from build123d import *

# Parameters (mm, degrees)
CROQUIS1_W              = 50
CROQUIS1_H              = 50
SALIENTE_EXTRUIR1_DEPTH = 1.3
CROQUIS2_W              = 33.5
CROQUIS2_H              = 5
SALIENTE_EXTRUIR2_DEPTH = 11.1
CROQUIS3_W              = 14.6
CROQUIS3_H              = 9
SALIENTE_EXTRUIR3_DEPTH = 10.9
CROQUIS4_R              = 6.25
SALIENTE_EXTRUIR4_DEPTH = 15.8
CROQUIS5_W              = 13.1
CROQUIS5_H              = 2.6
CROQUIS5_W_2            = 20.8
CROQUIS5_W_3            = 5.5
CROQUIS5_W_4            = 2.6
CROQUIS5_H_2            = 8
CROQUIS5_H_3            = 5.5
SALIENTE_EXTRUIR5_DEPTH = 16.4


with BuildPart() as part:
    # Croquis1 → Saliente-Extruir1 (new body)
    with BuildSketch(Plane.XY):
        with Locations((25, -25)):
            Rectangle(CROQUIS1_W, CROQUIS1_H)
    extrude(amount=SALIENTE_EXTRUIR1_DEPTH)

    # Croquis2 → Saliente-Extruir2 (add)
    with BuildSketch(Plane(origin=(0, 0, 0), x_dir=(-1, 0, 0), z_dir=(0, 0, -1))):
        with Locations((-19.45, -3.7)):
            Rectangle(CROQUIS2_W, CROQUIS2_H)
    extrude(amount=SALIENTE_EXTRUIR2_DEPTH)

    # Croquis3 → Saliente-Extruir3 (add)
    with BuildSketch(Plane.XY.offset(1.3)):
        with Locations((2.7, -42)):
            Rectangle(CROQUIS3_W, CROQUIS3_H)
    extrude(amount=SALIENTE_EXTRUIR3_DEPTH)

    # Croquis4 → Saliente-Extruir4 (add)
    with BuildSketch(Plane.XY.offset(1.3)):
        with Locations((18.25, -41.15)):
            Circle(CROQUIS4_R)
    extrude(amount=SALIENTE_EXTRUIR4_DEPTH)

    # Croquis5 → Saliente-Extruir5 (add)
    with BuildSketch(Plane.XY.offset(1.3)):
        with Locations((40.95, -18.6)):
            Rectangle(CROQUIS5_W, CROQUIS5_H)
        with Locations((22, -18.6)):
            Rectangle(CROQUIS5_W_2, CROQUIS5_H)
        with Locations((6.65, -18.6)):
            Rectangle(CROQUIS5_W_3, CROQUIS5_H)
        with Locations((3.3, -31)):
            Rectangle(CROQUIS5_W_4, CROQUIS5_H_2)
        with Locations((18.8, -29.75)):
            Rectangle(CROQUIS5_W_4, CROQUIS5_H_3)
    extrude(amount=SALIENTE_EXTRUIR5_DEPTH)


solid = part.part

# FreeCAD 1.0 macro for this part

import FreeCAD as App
import Part
import Sketcher

V = App.Vector


def add_polygon(sketch, points):
    """Adds a closed chain of lines whose ends are joined by coincident constraints."""
    first, n = sketch.GeometryCount, len(points)
    for a, b in zip(points, points[1:] + points[:1]):
        sketch.addGeometry(Part.LineSegment(App.Vector(*a, 0), App.Vector(*b, 0)), False)
    for i in range(n):
        sketch.addConstraint(Sketcher.Constraint("Coincident", first + i, 2, first + (i + 1) % n, 1))

doc = App.newDocument("Part")
body = doc.addObject("PartDesign::Body", "Body")

sketch1 = body.newObject("Sketcher::SketchObject", "Sketch")
sketch1.AttachmentSupport = (doc.getObject("XY_Plane"), [""])
sketch1.MapMode = "FlatFace"
add_polygon(sketch1, [(0, 0), (0, -50), (50, -50), (50, 0)])
sketch1.addConstraint([
    Sketcher.Constraint("Vertical", 0),
    Sketcher.Constraint("Horizontal", 1),
    Sketcher.Constraint("Vertical", 2),
    Sketcher.Constraint("Horizontal", 3),
    Sketcher.Constraint("Coincident", 3, 2, -1, 1),
    Sketcher.Constraint("Equal", 3, 0),
    Sketcher.Constraint("DistanceX", 1, 1, 1, 2, 50.0),
])
pad1 = body.newObject("PartDesign::Pad", "Pad")
pad1.Profile = sketch1
pad1.Length = 1.3

sketch2 = body.newObject("Sketcher::SketchObject", "Sketch001")
sketch2.AttachmentSupport = (doc.getObject("XY_Plane"), [""])
sketch2.MapMode = "FlatFace"
add_polygon(sketch2, [(36, -1), (36, -6), (3, -6), (3, -1)])
sketch2.addConstraint([
    Sketcher.Constraint("Vertical", 0),
    Sketcher.Constraint("Horizontal", 1),
    Sketcher.Constraint("Vertical", 2),
    Sketcher.Constraint("Horizontal", 3),
    Sketcher.Constraint("DistanceY", 0, 2, 0, 1, 5.0),
    Sketcher.Constraint("DistanceX", 1, 2, 1, 1, 33.5),
    Sketcher.Constraint("DistanceX", -1, 1, 0, 2, 36.2),
    Sketcher.Constraint("DistanceY", 0, 2, -1, 1, 6.2),
])
pad2 = body.newObject("PartDesign::Pad", "Pad001")
pad2.Profile = sketch2
pad2.Length = 11.1
pad2.Reversed = True

sketch3 = body.newObject("Sketcher::SketchObject", "Sketch002")
sketch3.AttachmentSupport = (doc.getObject("XY_Plane"), [""])
sketch3.MapMode = "FlatFace"
sketch3.AttachmentOffset = App.Placement(V(0, 0, 1.3), App.Rotation())
add_polygon(sketch3, [(-5, -38), (-5, -46), (10, -46), (10, -38)])
sketch3.addConstraint([
    Sketcher.Constraint("Vertical", 0),
    Sketcher.Constraint("Horizontal", 1),
    Sketcher.Constraint("Vertical", 2),
    Sketcher.Constraint("Horizontal", 3),
    Sketcher.Constraint("DistanceY", 0, 2, 0, 1, 9.0),
    Sketcher.Constraint("DistanceX", 1, 1, 1, 2, 14.6),
    Sketcher.Constraint("DistanceX", -1, 1, 1, 2, 10.0),
    Sketcher.Constraint("DistanceY", 0, 2, -1, 1, 46.5),
])
pad3 = body.newObject("PartDesign::Pad", "Pad002")
pad3.Profile = sketch3
pad3.Length = 10.9

sketch4 = body.newObject("Sketcher::SketchObject", "Sketch003")
sketch4.AttachmentSupport = (doc.getObject("XY_Plane"), [""])
sketch4.MapMode = "FlatFace"
sketch4.AttachmentOffset = App.Placement(V(0, 0, 1.3), App.Rotation())
sketch4.addGeometry(Part.Circle(V(18, -41, 0), V(0, 0, 1), 6), False)
sketch4.addConstraint([
    Sketcher.Constraint("Diameter", 0, 12.5),
    Sketcher.Constraint("DistanceX", -1, 1, 0, 3, 18.25),
    Sketcher.Constraint("DistanceY", 0, 3, -1, 1, 41.15),
])
pad4 = body.newObject("PartDesign::Pad", "Pad003")
pad4.Profile = sketch4
pad4.Length = 15.8

sketch5 = body.newObject("Sketcher::SketchObject", "Sketch004")
sketch5.AttachmentSupport = (doc.getObject("XY_Plane"), [""])
sketch5.MapMode = "FlatFace"
sketch5.AttachmentOffset = App.Placement(V(0, 0, 1.3), App.Rotation())
add_polygon(sketch5, [(34.4, -17.3), (34.4, -19.9), (47.5, -19.9), (47.5, -17.3)])
add_polygon(sketch5, [(11.6, -17.3), (11.6, -19.9), (32.4, -19.9), (32.4, -17.3)])
add_polygon(sketch5, [(3.9, -17.3), (3.9, -19.9), (9.4, -19.9), (9.4, -17.3)])
add_polygon(sketch5, [(2, -27), (2, -35), (4.6, -35), (4.6, -27)])
add_polygon(sketch5, [(17.5, -27), (17.5, -32.5), (20.1, -32.5), (20.1, -27)])
sketch5.addConstraint([
    Sketcher.Constraint("Vertical", 0),
    Sketcher.Constraint("Horizontal", 1),
    Sketcher.Constraint("Vertical", 2),
    Sketcher.Constraint("Horizontal", 3),
    Sketcher.Constraint("Vertical", 4),
    Sketcher.Constraint("Horizontal", 5),
    Sketcher.Constraint("Vertical", 6),
    Sketcher.Constraint("Horizontal", 7),
    Sketcher.Constraint("Vertical", 8),
    Sketcher.Constraint("Horizontal", 9),
    Sketcher.Constraint("Vertical", 10),
    Sketcher.Constraint("Horizontal", 11),
    Sketcher.Constraint("Vertical", 12),
    Sketcher.Constraint("Horizontal", 13),
    Sketcher.Constraint("Vertical", 14),
    Sketcher.Constraint("Horizontal", 15),
    Sketcher.Constraint("Vertical", 16),
    Sketcher.Constraint("Horizontal", 17),
    Sketcher.Constraint("Vertical", 18),
    Sketcher.Constraint("Horizontal", 19),
    Sketcher.Constraint("Horizontal", 1, 2, 4, 2),
    Sketcher.Constraint("Horizontal", 3, 2, 6, 2),
    Sketcher.Constraint("Horizontal", 5, 2, 8, 2),
    Sketcher.Constraint("Horizontal", 7, 2, 10, 2),
    Sketcher.Constraint("Horizontal", 15, 2, 18, 2),
    Sketcher.Constraint("Equal", 15, 17),
    Sketcher.Constraint("Equal", 19, 0),
    Sketcher.Constraint("Equal", 11, 16),
    Sketcher.Constraint("DistanceY", 12, 2, 12, 1, 8.0),
    Sketcher.Constraint("DistanceX", 1, 1, 1, 2, 13.1),
    Sketcher.Constraint("DistanceX", 5, 1, 5, 2, 20.8),
    Sketcher.Constraint("DistanceX", 9, 1, 9, 2, 5.5),
    Sketcher.Constraint("DistanceX", 13, 1, 13, 2, 2.6),
    Sketcher.Constraint("DistanceX", -1, 1, 12, 2, 2.0),
    Sketcher.Constraint("DistanceY", 12, 2, -1, 1, 35.0),
    Sketcher.Constraint("DistanceX", 5, 2, 0, 2, 2.0),
    Sketcher.Constraint("DistanceX", 9, 2, 5, 2, 23.0),
    Sketcher.Constraint("DistanceX", 13, 2, 4, 2, 7.0),
    Sketcher.Constraint("DistanceY", 0, 2, -1, 1, 19.9),
    Sketcher.Constraint("DistanceX", -1, 1, 16, 2, 17.5),
])
pad5 = body.newObject("PartDesign::Pad", "Pad004")
pad5.Profile = sketch5
pad5.Length = 16.4

doc.recompute()
